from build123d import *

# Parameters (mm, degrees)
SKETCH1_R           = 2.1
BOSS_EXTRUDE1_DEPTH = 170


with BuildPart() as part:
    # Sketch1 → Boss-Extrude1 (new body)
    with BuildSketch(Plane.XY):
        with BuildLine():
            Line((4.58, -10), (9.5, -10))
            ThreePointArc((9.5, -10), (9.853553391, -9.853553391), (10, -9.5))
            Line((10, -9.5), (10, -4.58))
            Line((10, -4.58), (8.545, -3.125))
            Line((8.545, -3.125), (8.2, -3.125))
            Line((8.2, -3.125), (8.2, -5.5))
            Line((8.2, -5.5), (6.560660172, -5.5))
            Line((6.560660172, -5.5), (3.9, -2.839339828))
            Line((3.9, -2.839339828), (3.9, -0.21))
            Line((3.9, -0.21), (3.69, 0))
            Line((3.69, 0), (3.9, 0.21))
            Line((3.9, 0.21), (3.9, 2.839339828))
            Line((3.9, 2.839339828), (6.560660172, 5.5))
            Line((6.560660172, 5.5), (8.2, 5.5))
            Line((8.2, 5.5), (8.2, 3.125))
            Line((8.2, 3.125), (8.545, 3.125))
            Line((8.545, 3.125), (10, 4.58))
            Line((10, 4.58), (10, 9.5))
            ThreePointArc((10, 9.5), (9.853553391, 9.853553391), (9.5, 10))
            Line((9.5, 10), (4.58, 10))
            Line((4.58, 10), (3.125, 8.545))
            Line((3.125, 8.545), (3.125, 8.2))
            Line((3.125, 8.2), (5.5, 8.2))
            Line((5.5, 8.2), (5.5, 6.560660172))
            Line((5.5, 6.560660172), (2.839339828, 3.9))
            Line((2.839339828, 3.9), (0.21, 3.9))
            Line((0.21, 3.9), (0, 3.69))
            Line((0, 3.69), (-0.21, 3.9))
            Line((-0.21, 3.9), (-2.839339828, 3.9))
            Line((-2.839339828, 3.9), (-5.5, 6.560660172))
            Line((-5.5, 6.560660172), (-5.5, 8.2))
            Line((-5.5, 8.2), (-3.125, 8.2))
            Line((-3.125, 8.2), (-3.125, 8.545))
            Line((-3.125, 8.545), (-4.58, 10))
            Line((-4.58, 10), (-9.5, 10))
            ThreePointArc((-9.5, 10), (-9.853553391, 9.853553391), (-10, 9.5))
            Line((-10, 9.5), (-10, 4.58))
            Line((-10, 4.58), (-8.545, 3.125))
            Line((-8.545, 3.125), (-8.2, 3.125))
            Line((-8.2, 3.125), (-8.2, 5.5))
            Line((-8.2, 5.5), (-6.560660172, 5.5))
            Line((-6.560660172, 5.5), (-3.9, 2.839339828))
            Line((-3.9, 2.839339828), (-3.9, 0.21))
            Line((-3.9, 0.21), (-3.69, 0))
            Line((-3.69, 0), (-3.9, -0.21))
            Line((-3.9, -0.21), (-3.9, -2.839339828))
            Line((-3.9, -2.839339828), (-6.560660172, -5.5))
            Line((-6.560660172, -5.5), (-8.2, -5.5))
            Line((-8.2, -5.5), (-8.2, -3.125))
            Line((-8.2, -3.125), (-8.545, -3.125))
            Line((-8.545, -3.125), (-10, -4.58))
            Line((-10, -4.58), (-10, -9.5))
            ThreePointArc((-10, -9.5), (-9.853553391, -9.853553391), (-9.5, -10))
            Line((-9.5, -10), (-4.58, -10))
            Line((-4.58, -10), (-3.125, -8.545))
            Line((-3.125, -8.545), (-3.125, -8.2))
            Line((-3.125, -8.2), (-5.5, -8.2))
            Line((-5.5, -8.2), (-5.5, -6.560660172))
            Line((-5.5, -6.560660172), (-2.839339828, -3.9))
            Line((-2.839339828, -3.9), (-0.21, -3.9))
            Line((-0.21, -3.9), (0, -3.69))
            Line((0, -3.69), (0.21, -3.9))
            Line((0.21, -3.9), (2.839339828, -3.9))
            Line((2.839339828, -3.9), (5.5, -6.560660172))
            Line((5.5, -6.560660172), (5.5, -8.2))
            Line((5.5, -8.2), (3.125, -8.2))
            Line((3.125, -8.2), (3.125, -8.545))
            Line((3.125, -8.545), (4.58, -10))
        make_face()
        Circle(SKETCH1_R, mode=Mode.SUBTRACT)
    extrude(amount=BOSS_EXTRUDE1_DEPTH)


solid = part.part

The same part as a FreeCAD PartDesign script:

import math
import FreeCAD as App
import Part
import Sketcher

doc = App.newDocument("Part")
body = doc.addObject("PartDesign::Body", "Body")

# Sketch on XY plane
sketch1 = body.newObject("Sketcher::SketchObject", "Sketch")
sketch1.AttachmentSupport = (doc.getObject("XY_Plane"), [""])
sketch1.MapMode = "FlatFace"
sketch1.addGeometry([
    Part.LineSegment(App.Vector(4.58, -10, 0), App.Vector(9.5, -10, 0)),  # 0
    Part.ArcOfCircle(Part.Circle(App.Vector(9.5, -9.5, 0), App.Vector(0, 0, 1), 0.5), math.radians(-90), math.radians(0)),  # 1
    Part.LineSegment(App.Vector(10, -9.5, 0), App.Vector(10, -4.58, 0)),  # 2
    Part.LineSegment(App.Vector(10, -4.58, 0), App.Vector(8.54, -3.12, 0)),  # 3
    Part.LineSegment(App.Vector(8.54, -3.12, 0), App.Vector(8.2, -3.12, 0)),  # 4
    Part.LineSegment(App.Vector(8.2, -3.12, 0), App.Vector(8.2, -5.5, 0)),  # 5
    Part.LineSegment(App.Vector(8.2, -5.5, 0), App.Vector(6.56, -5.5, 0)),  # 6
    Part.LineSegment(App.Vector(6.56, -5.5, 0), App.Vector(3.9, -2.84, 0)),  # 7
    Part.LineSegment(App.Vector(3.9, -2.84, 0), App.Vector(3.9, -0.21, 0)),  # 8
    Part.LineSegment(App.Vector(3.9, -0.21, 0), App.Vector(3.69, 0, 0)),  # 9
    Part.LineSegment(App.Vector(3.69, 0, 0), App.Vector(3.9, 0.21, 0)),  # 10
    Part.LineSegment(App.Vector(3.9, 0.21, 0), App.Vector(3.9, 2.84, 0)),  # 11
    Part.LineSegment(App.Vector(3.9, 2.84, 0), App.Vector(6.56, 5.5, 0)),  # 12
    Part.LineSegment(App.Vector(6.56, 5.5, 0), App.Vector(8.2, 5.5, 0)),  # 13
    Part.LineSegment(App.Vector(8.2, 5.5, 0), App.Vector(8.2, 3.12, 0)),  # 14
    Part.LineSegment(App.Vector(8.2, 3.12, 0), App.Vector(8.54, 3.12, 0)),  # 15
    Part.LineSegment(App.Vector(8.54, 3.12, 0), App.Vector(10, 4.58, 0)),  # 16
    Part.LineSegment(App.Vector(10, 4.58, 0), App.Vector(10, 9.5, 0)),  # 17
    Part.ArcOfCircle(Part.Circle(App.Vector(9.5, 9.5, 0), App.Vector(0, 0, 1), 0.5), math.radians(0), math.radians(90)),  # 18
    Part.LineSegment(App.Vector(9.5, 10, 0), App.Vector(4.58, 10, 0)),  # 19
    Part.LineSegment(App.Vector(4.58, 10, 0), App.Vector(3.12, 8.54, 0)),  # 20
    Part.LineSegment(App.Vector(3.12, 8.54, 0), App.Vector(3.12, 8.2, 0)),  # 21
    Part.LineSegment(App.Vector(3.12, 8.2, 0), App.Vector(5.5, 8.2, 0)),  # 22
    Part.LineSegment(App.Vector(5.5, 8.2, 0), App.Vector(5.5, 6.56, 0)),  # 23
    Part.LineSegment(App.Vector(5.5, 6.56, 0), App.Vector(2.84, 3.9, 0)),  # 24
    Part.LineSegment(App.Vector(2.84, 3.9, 0), App.Vector(0.21, 3.9, 0)),  # 25
    Part.LineSegment(App.Vector(0.21, 3.9, 0), App.Vector(0, 3.69, 0)),  # 26
    Part.LineSegment(App.Vector(0, 3.69, 0), App.Vector(-0.21, 3.9, 0)),  # 27
    Part.LineSegment(App.Vector(-0.21, 3.9, 0), App.Vector(-2.84, 3.9, 0)),  # 28
    Part.LineSegment(App.Vector(-2.84, 3.9, 0), App.Vector(-5.5, 6.56, 0)),  # 29
    Part.LineSegment(App.Vector(-5.5, 6.56, 0), App.Vector(-5.5, 8.2, 0)),  # 30
    Part.LineSegment(App.Vector(-5.5, 8.2, 0), App.Vector(-3.12, 8.2, 0)),  # 31
    Part.LineSegment(App.Vector(-3.12, 8.2, 0), App.Vector(-3.12, 8.54, 0)),  # 32
    Part.LineSegment(App.Vector(-3.12, 8.54, 0), App.Vector(-4.58, 10, 0)),  # 33
    Part.LineSegment(App.Vector(-4.58, 10, 0), App.Vector(-9.5, 10, 0)),  # 34
    Part.ArcOfCircle(Part.Circle(App.Vector(-9.5, 9.5, 0), App.Vector(0, 0, 1), 0.5), math.radians(90), math.radians(180)),  # 35
    Part.LineSegment(App.Vector(-10, 9.5, 0), App.Vector(-10, 4.58, 0)),  # 36
    Part.LineSegment(App.Vector(-10, 4.58, 0), App.Vector(-8.54, 3.12, 0)),  # 37
    Part.LineSegment(App.Vector(-8.54, 3.12, 0), App.Vector(-8.2, 3.12, 0)),  # 38
    Part.LineSegment(App.Vector(-8.2, 3.12, 0), App.Vector(-8.2, 5.5, 0)),  # 39
    Part.LineSegment(App.Vector(-8.2, 5.5, 0), App.Vector(-6.56, 5.5, 0)),  # 40
    Part.LineSegment(App.Vector(-6.56, 5.5, 0), App.Vector(-3.9, 2.84, 0)),  # 41
    Part.LineSegment(App.Vector(-3.9, 2.84, 0), App.Vector(-3.9, 0.21, 0)),  # 42
    Part.LineSegment(App.Vector(-3.9, 0.21, 0), App.Vector(-3.69, 0, 0)),  # 43
    Part.LineSegment(App.Vector(-3.69, 0, 0), App.Vector(-3.9, -0.21, 0)),  # 44
    Part.LineSegment(App.Vector(-3.9, -0.21, 0), App.Vector(-3.9, -2.84, 0)),  # 45
    Part.LineSegment(App.Vector(-3.9, -2.84, 0), App.Vector(-6.56, -5.5, 0)),  # 46
    Part.LineSegment(App.Vector(-6.56, -5.5, 0), App.Vector(-8.2, -5.5, 0)),  # 47
    Part.LineSegment(App.Vector(-8.2, -5.5, 0), App.Vector(-8.2, -3.12, 0)),  # 48
    Part.LineSegment(App.Vector(-8.2, -3.12, 0), App.Vector(-8.54, -3.12, 0)),  # 49
    Part.LineSegment(App.Vector(-8.54, -3.12, 0), App.Vector(-10, -4.58, 0)),  # 50
    Part.LineSegment(App.Vector(-10, -4.58, 0), App.Vector(-10, -9.5, 0)),  # 51
    Part.ArcOfCircle(Part.Circle(App.Vector(-9.5, -9.5, 0), App.Vector(0, 0, 1), 0.5), math.radians(180), math.radians(270)),  # 52
    Part.LineSegment(App.Vector(-9.5, -10, 0), App.Vector(-4.58, -10, 0)),  # 53
    Part.LineSegment(App.Vector(-4.58, -10, 0), App.Vector(-3.12, -8.54, 0)),  # 54
    Part.LineSegment(App.Vector(-3.12, -8.54, 0), App.Vector(-3.12, -8.2, 0)),  # 55
    Part.LineSegment(App.Vector(-3.12, -8.2, 0), App.Vector(-5.5, -8.2, 0)),  # 56
    Part.LineSegment(App.Vector(-5.5, -8.2, 0), App.Vector(-5.5, -6.56, 0)),  # 57
    Part.LineSegment(App.Vector(-5.5, -6.56, 0), App.Vector(-2.84, -3.9, 0)),  # 58
    Part.LineSegment(App.Vector(-2.84, -3.9, 0), App.Vector(-0.21, -3.9, 0)),  # 59
    Part.LineSegment(App.Vector(-0.21, -3.9, 0), App.Vector(0, -3.69, 0)),  # 60
    Part.LineSegment(App.Vector(0, -3.69, 0), App.Vector(0.21, -3.9, 0)),  # 61
    Part.LineSegment(App.Vector(0.21, -3.9, 0), App.Vector(2.84, -3.9, 0)),  # 62
    Part.LineSegment(App.Vector(2.84, -3.9, 0), App.Vector(5.5, -6.56, 0)),  # 63
    Part.LineSegment(App.Vector(5.5, -6.56, 0), App.Vector(5.5, -8.2, 0)),  # 64
    Part.LineSegment(App.Vector(5.5, -8.2, 0), App.Vector(3.12, -8.2, 0)),  # 65
    Part.LineSegment(App.Vector(3.12, -8.2, 0), App.Vector(3.12, -8.54, 0)),  # 66
    Part.LineSegment(App.Vector(3.12, -8.54, 0), App.Vector(4.58, -10, 0)),  # 67
    Part.Circle(App.Vector(0, 0, 0), App.Vector(0, 0, 1), 2.1),  # 68
], False)
sketch1.addConstraint([
    Sketcher.Constraint("Tangent", 0, 2, 1, 1),
    Sketcher.Constraint("Tangent", 1, 2, 2, 1),
    Sketcher.Constraint("Coincident", 2, 2, 3, 1),
    Sketcher.Constraint("Coincident", 3, 2, 4, 1),
    Sketcher.Constraint("Coincident", 4, 2, 5, 1),
    Sketcher.Constraint("Coincident", 5, 2, 6, 1),
    Sketcher.Constraint("Coincident", 6, 2, 7, 1),
    Sketcher.Constraint("Coincident", 7, 2, 8, 1),
    Sketcher.Constraint("Coincident", 8, 2, 9, 1),
    Sketcher.Constraint("Coincident", 9, 2, 10, 1),
    Sketcher.Constraint("Coincident", 10, 2, 11, 1),
    Sketcher.Constraint("Coincident", 11, 2, 12, 1),
    Sketcher.Constraint("Coincident", 12, 2, 13, 1),
    Sketcher.Constraint("Coincident", 13, 2, 14, 1),
    Sketcher.Constraint("Coincident", 14, 2, 15, 1),
    Sketcher.Constraint("Coincident", 15, 2, 16, 1),
    Sketcher.Constraint("Coincident", 16, 2, 17, 1),
    Sketcher.Constraint("Tangent", 17, 2, 18, 1),
    Sketcher.Constraint("Tangent", 18, 2, 19, 1),
    Sketcher.Constraint("Coincident", 19, 2, 20, 1),
    Sketcher.Constraint("Coincident", 20, 2, 21, 1),
    Sketcher.Constraint("Coincident", 21, 2, 22, 1),
    Sketcher.Constraint("Coincident", 22, 2, 23, 1),
    Sketcher.Constraint("Coincident", 23, 2, 24, 1),
    Sketcher.Constraint("Coincident", 24, 2, 25, 1),
    Sketcher.Constraint("Coincident", 25, 2, 26, 1),
    Sketcher.Constraint("Coincident", 26, 2, 27, 1),
    Sketcher.Constraint("Coincident", 27, 2, 28, 1),
    Sketcher.Constraint("Coincident", 28, 2, 29, 1),
    Sketcher.Constraint("Coincident", 29, 2, 30, 1),
    Sketcher.Constraint("Coincident", 30, 2, 31, 1),
    Sketcher.Constraint("Coincident", 31, 2, 32, 1),
    Sketcher.Constraint("Coincident", 32, 2, 33, 1),
    Sketcher.Constraint("Coincident", 33, 2, 34, 1),
    Sketcher.Constraint("Tangent", 34, 2, 35, 1),
    Sketcher.Constraint("Tangent", 35, 2, 36, 1),
    Sketcher.Constraint("Coincident", 36, 2, 37, 1),
    Sketcher.Constraint("Coincident", 37, 2, 38, 1),
    Sketcher.Constraint("Coincident", 38, 2, 39, 1),
    Sketcher.Constraint("Coincident", 39, 2, 40, 1),
    Sketcher.Constraint("Coincident", 40, 2, 41, 1),
    Sketcher.Constraint("Coincident", 41, 2, 42, 1),
    Sketcher.Constraint("Coincident", 42, 2, 43, 1),
    Sketcher.Constraint("Coincident", 43, 2, 44, 1),
    Sketcher.Constraint("Coincident", 44, 2, 45, 1),
    Sketcher.Constraint("Coincident", 45, 2, 46, 1),
    Sketcher.Constraint("Coincident", 46, 2, 47, 1),
    Sketcher.Constraint("Coincident", 47, 2, 48, 1),
    Sketcher.Constraint("Coincident", 48, 2, 49, 1),
    Sketcher.Constraint("Coincident", 49, 2, 50, 1),
    Sketcher.Constraint("Coincident", 50, 2, 51, 1),
    Sketcher.Constraint("Tangent", 51, 2, 52, 1),
    Sketcher.Constraint("Tangent", 52, 2, 53, 1),
    Sketcher.Constraint("Coincident", 53, 2, 54, 1),
    Sketcher.Constraint("Coincident", 54, 2, 55, 1),
    Sketcher.Constraint("Coincident", 55, 2, 56, 1),
    Sketcher.Constraint("Coincident", 56, 2, 57, 1),
    Sketcher.Constraint("Coincident", 57, 2, 58, 1),
    Sketcher.Constraint("Coincident", 58, 2, 59, 1),
    Sketcher.Constraint("Coincident", 59, 2, 60, 1),
    Sketcher.Constraint("Coincident", 60, 2, 61, 1),
    Sketcher.Constraint("Coincident", 61, 2, 62, 1),
    Sketcher.Constraint("Coincident", 62, 2, 63, 1),
    Sketcher.Constraint("Coincident", 63, 2, 64, 1),
    Sketcher.Constraint("Coincident", 64, 2, 65, 1),
    Sketcher.Constraint("Coincident", 65, 2, 66, 1),
    Sketcher.Constraint("Coincident", 66, 2, 67, 1),
    Sketcher.Constraint("Coincident", 67, 2, 0, 1),
    Sketcher.Constraint("Horizontal", 0),
    Sketcher.Constraint("Vertical", 2),
    Sketcher.Constraint("Horizontal", 4),
    Sketcher.Constraint("Vertical", 5),
    Sketcher.Constraint("Horizontal", 6),
    Sketcher.Constraint("Vertical", 8),
    Sketcher.Constraint("Vertical", 11),
    Sketcher.Constraint("Horizontal", 13),
    Sketcher.Constraint("Vertical", 14),
    Sketcher.Constraint("Horizontal", 15),
    Sketcher.Constraint("Vertical", 17),
    Sketcher.Constraint("Horizontal", 19),
    Sketcher.Constraint("Vertical", 21),
    Sketcher.Constraint("Horizontal", 22),
    Sketcher.Constraint("Vertical", 23),
    Sketcher.Constraint("Horizontal", 25),
    Sketcher.Constraint("Horizontal", 28),
    Sketcher.Constraint("Vertical", 30),
    Sketcher.Constraint("Horizontal", 31),
    Sketcher.Constraint("Vertical", 32),
    Sketcher.Constraint("Horizontal", 34),
    Sketcher.Constraint("Vertical", 36),
    Sketcher.Constraint("Horizontal", 38),
    Sketcher.Constraint("Vertical", 39),
    Sketcher.Constraint("Horizontal", 40),
    Sketcher.Constraint("Vertical", 42),
    Sketcher.Constraint("Vertical", 45),
    Sketcher.Constraint("Horizontal", 47),
    Sketcher.Constraint("Vertical", 48),
    Sketcher.Constraint("Horizontal", 49),
    Sketcher.Constraint("Vertical", 51),
    Sketcher.Constraint("Horizontal", 53),
    Sketcher.Constraint("Vertical", 55),
    Sketcher.Constraint("Horizontal", 56),
    Sketcher.Constraint("Vertical", 57),
    Sketcher.Constraint("Horizontal", 59),
    Sketcher.Constraint("Horizontal", 62),
    Sketcher.Constraint("Vertical", 64),
    Sketcher.Constraint("Horizontal", 65),
    Sketcher.Constraint("Vertical", 66),
    Sketcher.Constraint("Coincident", 68, 3, -1, 1),
    Sketcher.Constraint("Equal", 1, 18),
    Sketcher.Constraint("Equal", 18, 35),
    Sketcher.Constraint("Equal", 35, 52),
    Sketcher.Constraint("Symmetric", 1, 3, 35, 3, -1, 1),
    Sketcher.Constraint("Symmetric", 18, 3, 52, 3, -1, 1),
    Sketcher.Constraint("Symmetric", 3, 2, 37, 2, -1, 1),
    Sketcher.Constraint("Symmetric", 5, 2, 39, 2, -1, 1),
    Sketcher.Constraint("Symmetric", 7, 2, 41, 2, -1, 1),
    Sketcher.Constraint("Symmetric", 9, 2, 43, 2, -1, 1),
    Sketcher.Constraint("Symmetric", 10, 2, 44, 2, -1, 1),
    Sketcher.Constraint("Symmetric", 12, 2, 46, 2, -1, 1),
    Sketcher.Constraint("Symmetric", 14, 2, 48, 2, -1, 1),
    Sketcher.Constraint("Symmetric", 20, 2, 54, 2, -1, 1),
    Sketcher.Constraint("Symmetric", 22, 2, 56, 2, -1, 1),
    Sketcher.Constraint("Symmetric", 24, 2, 58, 2, -1, 1),
    Sketcher.Constraint("Symmetric", 26, 2, 60, 2, -1, 1),
    Sketcher.Constraint("Symmetric", 27, 2, 61, 2, -1, 1),
    Sketcher.Constraint("Symmetric", 29, 2, 63, 2, -1, 1),
    Sketcher.Constraint("Symmetric", 31, 2, 65, 2, -1, 1),
    Sketcher.Constraint("Symmetric", 18, 3, 35, 3, -2),
    Sketcher.Constraint("Symmetric", 25, 2, 27, 2, -2),
    Sketcher.Constraint("Symmetric", 23, 2, 29, 2, -2),
    Sketcher.Constraint("Symmetric", 21, 2, 31, 2, -2),
    Sketcher.Constraint("Symmetric", 15, 2, 37, 2, -2),
    Sketcher.Constraint("Symmetric", 13, 2, 39, 2, -2),
    Sketcher.Constraint("Symmetric", 11, 2, 41, 2, -2),
    Sketcher.Constraint("PointOnObject", 9, 2, -1),
    Sketcher.Constraint("PointOnObject", 26, 2, -2),
    Sketcher.Constraint("Parallel", 3, 7),
    Sketcher.Constraint("Parallel", 7, 9),
    Sketcher.Constraint("Perpendicular", 9, 10),
    Sketcher.Constraint("Parallel", 10, 12),
    Sketcher.Constraint("Parallel", 12, 16),
    Sketcher.Constraint("Parallel", 16, 20),
    Sketcher.Constraint("Parallel", 20, 24),
    Sketcher.Constraint("Parallel", 24, 26),
    Sketcher.Constraint("Perpendicular", 26, 27),
    Sketcher.Constraint("Parallel", 27, 29),
    Sketcher.Constraint("Parallel", 29, 33),
    Sketcher.Constraint("Parallel", 33, 37),
    Sketcher.Constraint("Parallel", 37, 41),
    Sketcher.Constraint("Parallel", 41, 43),
    Sketcher.Constraint("Parallel", 44, 46),
    Sketcher.Constraint("Parallel", 46, 50),
    Sketcher.Constraint("Parallel", 50, 54),
    Sketcher.Constraint("Parallel", 54, 58),
    Sketcher.Constraint("Parallel", 58, 60),
    Sketcher.Constraint("Parallel", 61, 63),
    Sketcher.Constraint("Parallel", 63, 67),
    Sketcher.Constraint("Horizontal", 20, 2, 32, 2),
    Sketcher.Constraint("Horizontal", 2, 2, 50, 2),
    Sketcher.Constraint("Horizontal", 54, 2, 66, 2),
    Sketcher.Constraint("Equal", 53, 2),
    Sketcher.Constraint("Equal", 65, 5),
    Sketcher.Constraint("Equal", 62, 8),
    Sketcher.Constraint("Equal", 49, 21),
    Sketcher.Constraint("Equal", 47, 23),
    Sketcher.Constraint("Equal", 16, 20),
    Sketcher.Constraint("Equal", 12, 24),
    Sketcher.Constraint("Equal", 10, 26),
    Sketcher.Constraint("Diameter", 68, 4.2),
    Sketcher.Constraint("Radius", 1, 0.5),
    Sketcher.Constraint("DistanceY", 0, 2, -1, 1, 10.0),
    Sketcher.Constraint("DistanceX", 0, 1, 0, 2, 4.92),
    Sketcher.Constraint("DistanceX", -1, 1, 4, 2, 8.2),
    Sketcher.Constraint("DistanceY", 5, 2, -1, 1, 5.5),
    Sketcher.Constraint("DistanceX", -1, 1, 7, 2, 3.9),
    Sketcher.Constraint("DistanceX", 4, 2, 4, 1, 0.345),
    Sketcher.Constraint("DistanceY", 8, 2, -1, 1, 0.21),
    Sketcher.Constraint("DistanceX", 6, 2, 6, 1, 1.63934),
])
pad1 = body.newObject("PartDesign::Pad", "Pad")
pad1.Profile = sketch1
pad1.Length = 170

doc.recompute()
